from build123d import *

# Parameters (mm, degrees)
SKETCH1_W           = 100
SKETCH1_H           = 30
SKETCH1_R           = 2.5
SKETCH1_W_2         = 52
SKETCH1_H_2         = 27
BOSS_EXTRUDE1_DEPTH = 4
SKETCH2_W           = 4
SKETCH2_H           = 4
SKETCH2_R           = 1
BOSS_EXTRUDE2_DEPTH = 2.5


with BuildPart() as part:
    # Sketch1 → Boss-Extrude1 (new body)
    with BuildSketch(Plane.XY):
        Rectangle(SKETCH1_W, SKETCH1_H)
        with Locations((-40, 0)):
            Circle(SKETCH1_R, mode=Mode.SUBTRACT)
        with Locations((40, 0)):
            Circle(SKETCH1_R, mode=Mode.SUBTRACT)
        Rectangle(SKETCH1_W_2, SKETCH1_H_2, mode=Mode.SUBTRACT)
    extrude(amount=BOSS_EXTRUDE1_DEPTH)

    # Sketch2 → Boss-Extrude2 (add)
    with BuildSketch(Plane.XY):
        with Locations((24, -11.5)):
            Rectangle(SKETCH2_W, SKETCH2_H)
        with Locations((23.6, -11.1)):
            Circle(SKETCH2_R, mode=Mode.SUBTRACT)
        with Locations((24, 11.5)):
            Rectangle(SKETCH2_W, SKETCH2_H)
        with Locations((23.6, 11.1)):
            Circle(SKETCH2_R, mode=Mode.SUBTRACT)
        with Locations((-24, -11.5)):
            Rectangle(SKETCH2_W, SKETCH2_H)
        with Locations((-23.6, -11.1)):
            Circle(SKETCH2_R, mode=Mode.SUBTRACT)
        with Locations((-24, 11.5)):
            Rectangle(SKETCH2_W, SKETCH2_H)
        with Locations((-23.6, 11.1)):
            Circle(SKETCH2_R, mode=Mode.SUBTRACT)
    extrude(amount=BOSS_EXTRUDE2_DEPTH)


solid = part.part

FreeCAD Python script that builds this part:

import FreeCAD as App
import Part
import Sketcher

doc = App.newDocument("Part")
body = doc.addObject("PartDesign::Body", "Body")

# Sketch on XY plane
sketch1 = body.newObject("Sketcher::SketchObject", "Sketch")
sketch1.AttachmentSupport = (doc.getObject("XY_Plane"), [""])
sketch1.MapMode = "FlatFace"
sketch1.addGeometry([
    Part.LineSegment(App.Vector(-50, 15, 0), App.Vector(-50, -15, 0)),  # 0
    Part.LineSegment(App.Vector(-50, -15, 0), App.Vector(50, -15, 0)),  # 1
    Part.LineSegment(App.Vector(50, -15, 0), App.Vector(50, 15, 0)),  # 2
    Part.LineSegment(App.Vector(50, 15, 0), App.Vector(-50, 15, 0)),  # 3
    Part.Circle(App.Vector(-40, 0, 0), App.Vector(0, 0, 1), 2.5),  # 4
    Part.LineSegment(App.Vector(26, -13.5, 0), App.Vector(-26, -13.5, 0)),  # 5
    Part.LineSegment(App.Vector(-26, -13.5, 0), App.Vector(-26, 13.5, 0)),  # 6
    Part.LineSegment(App.Vector(-26, 13.5, 0), App.Vector(26, 13.5, 0)),  # 7
    Part.LineSegment(App.Vector(26, 13.5, 0), App.Vector(26, -13.5, 0)),  # 8
    Part.Circle(App.Vector(40, 0, 0), App.Vector(0, 0, 1), 2.5),  # 9
], False)
sketch1.addConstraint([
    Sketcher.Constraint("Coincident", 0, 2, 1, 1),
    Sketcher.Constraint("Coincident", 1, 2, 2, 1),
    Sketcher.Constraint("Coincident", 2, 2, 3, 1),
    Sketcher.Constraint("Coincident", 3, 2, 0, 1),
    Sketcher.Constraint("Coincident", 5, 2, 6, 1),
    Sketcher.Constraint("Coincident", 6, 2, 7, 1),
    Sketcher.Constraint("Coincident", 7, 2, 8, 1),
    Sketcher.Constraint("Coincident", 8, 2, 5, 1),
    Sketcher.Constraint("Vertical", 0),
    Sketcher.Constraint("Horizontal", 1),
    Sketcher.Constraint("Vertical", 2),
    Sketcher.Constraint("Horizontal", 3),
    Sketcher.Constraint("Horizontal", 5),
    Sketcher.Constraint("Vertical", 6),
    Sketcher.Constraint("Horizontal", 7),
    Sketcher.Constraint("Vertical", 8),
    Sketcher.Constraint("Equal", 4, 9),
    Sketcher.Constraint("Symmetric", 4, 3, 9, 3, -1, 1),
    Sketcher.Constraint("Symmetric", 0, 2, 2, 2, -1, 1),
    Sketcher.Constraint("Symmetric", 5, 2, 7, 2, -1, 1),
    Sketcher.Constraint("PointOnObject", 4, 3, -1),
    Sketcher.Constraint("Diameter", 4, 5.0),
    Sketcher.Constraint("DistanceX", 1, 1, 1, 2, 100.0),
    Sketcher.Constraint("DistanceX", 5, 2, 5, 1, 52.0),
    Sketcher.Constraint("DistanceY", 0, 2, 0, 1, 30.0),
    Sketcher.Constraint("DistanceY", 6, 1, 6, 2, 27.0),
    Sketcher.Constraint("DistanceX", 4, 3, -1, 1, 40.0),
])
pad1 = body.newObject("PartDesign::Pad", "Pad")
pad1.Profile = sketch1
pad1.Length = 4

# Sketch on XY plane
sketch2 = body.newObject("Sketcher::SketchObject", "Sketch001")
sketch2.AttachmentSupport = (doc.getObject("XY_Plane"), [""])
sketch2.MapMode = "FlatFace"
sketch2.addGeometry([
    Part.LineSegment(App.Vector(22, -9.5, 0), App.Vector(22, -13.5, 0)),  # 0
    Part.LineSegment(App.Vector(22, -13.5, 0), App.Vector(26, -13.5, 0)),  # 1
    Part.LineSegment(App.Vector(26, -13.5, 0), App.Vector(26, -9.5, 0)),  # 2
    Part.LineSegment(App.Vector(26, -9.5, 0), App.Vector(22, -9.5, 0)),  # 3
    Part.Circle(App.Vector(23.6, -11.1, 0), App.Vector(0, 0, 1), 1),  # 4
    Part.LineSegment(App.Vector(22, 13.5, 0), App.Vector(22, 9.5, 0)),  # 5
    Part.LineSegment(App.Vector(22, 9.5, 0), App.Vector(26, 9.5, 0)),  # 6
    Part.LineSegment(App.Vector(26, 9.5, 0), App.Vector(26, 13.5, 0)),  # 7
    Part.LineSegment(App.Vector(26, 13.5, 0), App.Vector(22, 13.5, 0)),  # 8
    Part.Circle(App.Vector(23.6, 11.1, 0), App.Vector(0, 0, 1), 1),  # 9
    Part.LineSegment(App.Vector(-26, -9.5, 0), App.Vector(-26, -13.5, 0)),  # 10
    Part.LineSegment(App.Vector(-26, -13.5, 0), App.Vector(-22, -13.5, 0)),  # 11
    Part.LineSegment(App.Vector(-22, -13.5, 0), App.Vector(-22, -9.5, 0)),  # 12
    Part.LineSegment(App.Vector(-22, -9.5, 0), App.Vector(-26, -9.5, 0)),  # 13
    Part.Circle(App.Vector(-23.6, -11.1, 0), App.Vector(0, 0, 1), 1),  # 14
    Part.LineSegment(App.Vector(-26, 13.5, 0), App.Vector(-26, 9.5, 0)),  # 15
    Part.LineSegment(App.Vector(-26, 9.5, 0), App.Vector(-22, 9.5, 0)),  # 16
    Part.LineSegment(App.Vector(-22, 9.5, 0), App.Vector(-22, 13.5, 0)),  # 17
    Part.LineSegment(App.Vector(-22, 13.5, 0), App.Vector(-26, 13.5, 0)),  # 18
    Part.Circle(App.Vector(-23.6, 11.1, 0), App.Vector(0, 0, 1), 1),  # 19
], False)
sketch2.addConstraint([
    Sketcher.Constraint("Coincident", 0, 2, 1, 1),
    Sketcher.Constraint("Coincident", 1, 2, 2, 1),
    Sketcher.Constraint("Coincident", 2, 2, 3, 1),
    Sketcher.Constraint("Coincident", 3, 2, 0, 1),
    Sketcher.Constraint("Coincident", 5, 2, 6, 1),
    Sketcher.Constraint("Coincident", 6, 2, 7, 1),
    Sketcher.Constraint("Coincident", 7, 2, 8, 1),
    Sketcher.Constraint("Coincident", 8, 2, 5, 1),
    Sketcher.Constraint("Coincident", 10, 2, 11, 1),
    Sketcher.Constraint("Coincident", 11, 2, 12, 1),
    Sketcher.Constraint("Coincident", 12, 2, 13, 1),
    Sketcher.Constraint("Coincident", 13, 2, 10, 1),
    Sketcher.Constraint("Coincident", 15, 2, 16, 1),
    Sketcher.Constraint("Coincident", 16, 2, 17, 1),
    Sketcher.Constraint("Coincident", 17, 2, 18, 1),
    Sketcher.Constraint("Coincident", 18, 2, 15, 1),
    Sketcher.Constraint("Vertical", 0),
    Sketcher.Constraint("Horizontal", 1),
    Sketcher.Constraint("Vertical", 2),
    Sketcher.Constraint("Horizontal", 3),
    Sketcher.Constraint("Vertical", 5),
    Sketcher.Constraint("Horizontal", 6),
    Sketcher.Constraint("Vertical", 7),
    Sketcher.Constraint("Horizontal", 8),
    Sketcher.Constraint("Vertical", 10),
    Sketcher.Constraint("Horizontal", 11),
    Sketcher.Constraint("Vertical", 12),
    Sketcher.Constraint("Horizontal", 13),
    Sketcher.Constraint("Vertical", 15),
    Sketcher.Constraint("Horizontal", 16),
    Sketcher.Constraint("Vertical", 17),
    Sketcher.Constraint("Horizontal", 18),
    Sketcher.Constraint("Equal", 4, 9),
    Sketcher.Constraint("Equal", 9, 14),
    Sketcher.Constraint("Equal", 14, 19),
    Sketcher.Constraint("Symmetric", 9, 3, 14, 3, -1, 1),
    Sketcher.Constraint("Symmetric", 4, 3, 19, 3, -1, 1),
    Sketcher.Constraint("Symmetric", 7, 2, 10, 2, -1, 1),
    Sketcher.Constraint("Symmetric", 5, 2, 12, 2, -1, 1),
    Sketcher.Constraint("Symmetric", 2, 2, 15, 2, -1, 1),
    Sketcher.Constraint("Symmetric", 0, 2, 17, 2, -1, 1),
    Sketcher.Constraint("Symmetric", 4, 3, 14, 3, -2),
    Sketcher.Constraint("Symmetric", 1, 2, 10, 2, -2),
    Sketcher.Constraint("Symmetric", 3, 2, 12, 2, -2),
    Sketcher.Constraint("Equal", 18, 0),
    Sketcher.Constraint("Diameter", 4, 2.0),
    Sketcher.Constraint("DistanceX", 1, 1, 1, 2, 4.0),
    Sketcher.Constraint("DistanceX", -1, 1, 0, 2, 22.0),
    Sketcher.Constraint("DistanceY", 3, 2, 5, 2, 19.0),
    Sketcher.Constraint("DistanceX", -1, 1, 4, 3, 23.6),
    Sketcher.Constraint("DistanceY", 4, 3, -1, 1, 11.1),
])
pad2 = body.newObject("PartDesign::Pad", "Pad001")
pad2.Profile = sketch2
pad2.Length = 2.5

doc.recompute()
